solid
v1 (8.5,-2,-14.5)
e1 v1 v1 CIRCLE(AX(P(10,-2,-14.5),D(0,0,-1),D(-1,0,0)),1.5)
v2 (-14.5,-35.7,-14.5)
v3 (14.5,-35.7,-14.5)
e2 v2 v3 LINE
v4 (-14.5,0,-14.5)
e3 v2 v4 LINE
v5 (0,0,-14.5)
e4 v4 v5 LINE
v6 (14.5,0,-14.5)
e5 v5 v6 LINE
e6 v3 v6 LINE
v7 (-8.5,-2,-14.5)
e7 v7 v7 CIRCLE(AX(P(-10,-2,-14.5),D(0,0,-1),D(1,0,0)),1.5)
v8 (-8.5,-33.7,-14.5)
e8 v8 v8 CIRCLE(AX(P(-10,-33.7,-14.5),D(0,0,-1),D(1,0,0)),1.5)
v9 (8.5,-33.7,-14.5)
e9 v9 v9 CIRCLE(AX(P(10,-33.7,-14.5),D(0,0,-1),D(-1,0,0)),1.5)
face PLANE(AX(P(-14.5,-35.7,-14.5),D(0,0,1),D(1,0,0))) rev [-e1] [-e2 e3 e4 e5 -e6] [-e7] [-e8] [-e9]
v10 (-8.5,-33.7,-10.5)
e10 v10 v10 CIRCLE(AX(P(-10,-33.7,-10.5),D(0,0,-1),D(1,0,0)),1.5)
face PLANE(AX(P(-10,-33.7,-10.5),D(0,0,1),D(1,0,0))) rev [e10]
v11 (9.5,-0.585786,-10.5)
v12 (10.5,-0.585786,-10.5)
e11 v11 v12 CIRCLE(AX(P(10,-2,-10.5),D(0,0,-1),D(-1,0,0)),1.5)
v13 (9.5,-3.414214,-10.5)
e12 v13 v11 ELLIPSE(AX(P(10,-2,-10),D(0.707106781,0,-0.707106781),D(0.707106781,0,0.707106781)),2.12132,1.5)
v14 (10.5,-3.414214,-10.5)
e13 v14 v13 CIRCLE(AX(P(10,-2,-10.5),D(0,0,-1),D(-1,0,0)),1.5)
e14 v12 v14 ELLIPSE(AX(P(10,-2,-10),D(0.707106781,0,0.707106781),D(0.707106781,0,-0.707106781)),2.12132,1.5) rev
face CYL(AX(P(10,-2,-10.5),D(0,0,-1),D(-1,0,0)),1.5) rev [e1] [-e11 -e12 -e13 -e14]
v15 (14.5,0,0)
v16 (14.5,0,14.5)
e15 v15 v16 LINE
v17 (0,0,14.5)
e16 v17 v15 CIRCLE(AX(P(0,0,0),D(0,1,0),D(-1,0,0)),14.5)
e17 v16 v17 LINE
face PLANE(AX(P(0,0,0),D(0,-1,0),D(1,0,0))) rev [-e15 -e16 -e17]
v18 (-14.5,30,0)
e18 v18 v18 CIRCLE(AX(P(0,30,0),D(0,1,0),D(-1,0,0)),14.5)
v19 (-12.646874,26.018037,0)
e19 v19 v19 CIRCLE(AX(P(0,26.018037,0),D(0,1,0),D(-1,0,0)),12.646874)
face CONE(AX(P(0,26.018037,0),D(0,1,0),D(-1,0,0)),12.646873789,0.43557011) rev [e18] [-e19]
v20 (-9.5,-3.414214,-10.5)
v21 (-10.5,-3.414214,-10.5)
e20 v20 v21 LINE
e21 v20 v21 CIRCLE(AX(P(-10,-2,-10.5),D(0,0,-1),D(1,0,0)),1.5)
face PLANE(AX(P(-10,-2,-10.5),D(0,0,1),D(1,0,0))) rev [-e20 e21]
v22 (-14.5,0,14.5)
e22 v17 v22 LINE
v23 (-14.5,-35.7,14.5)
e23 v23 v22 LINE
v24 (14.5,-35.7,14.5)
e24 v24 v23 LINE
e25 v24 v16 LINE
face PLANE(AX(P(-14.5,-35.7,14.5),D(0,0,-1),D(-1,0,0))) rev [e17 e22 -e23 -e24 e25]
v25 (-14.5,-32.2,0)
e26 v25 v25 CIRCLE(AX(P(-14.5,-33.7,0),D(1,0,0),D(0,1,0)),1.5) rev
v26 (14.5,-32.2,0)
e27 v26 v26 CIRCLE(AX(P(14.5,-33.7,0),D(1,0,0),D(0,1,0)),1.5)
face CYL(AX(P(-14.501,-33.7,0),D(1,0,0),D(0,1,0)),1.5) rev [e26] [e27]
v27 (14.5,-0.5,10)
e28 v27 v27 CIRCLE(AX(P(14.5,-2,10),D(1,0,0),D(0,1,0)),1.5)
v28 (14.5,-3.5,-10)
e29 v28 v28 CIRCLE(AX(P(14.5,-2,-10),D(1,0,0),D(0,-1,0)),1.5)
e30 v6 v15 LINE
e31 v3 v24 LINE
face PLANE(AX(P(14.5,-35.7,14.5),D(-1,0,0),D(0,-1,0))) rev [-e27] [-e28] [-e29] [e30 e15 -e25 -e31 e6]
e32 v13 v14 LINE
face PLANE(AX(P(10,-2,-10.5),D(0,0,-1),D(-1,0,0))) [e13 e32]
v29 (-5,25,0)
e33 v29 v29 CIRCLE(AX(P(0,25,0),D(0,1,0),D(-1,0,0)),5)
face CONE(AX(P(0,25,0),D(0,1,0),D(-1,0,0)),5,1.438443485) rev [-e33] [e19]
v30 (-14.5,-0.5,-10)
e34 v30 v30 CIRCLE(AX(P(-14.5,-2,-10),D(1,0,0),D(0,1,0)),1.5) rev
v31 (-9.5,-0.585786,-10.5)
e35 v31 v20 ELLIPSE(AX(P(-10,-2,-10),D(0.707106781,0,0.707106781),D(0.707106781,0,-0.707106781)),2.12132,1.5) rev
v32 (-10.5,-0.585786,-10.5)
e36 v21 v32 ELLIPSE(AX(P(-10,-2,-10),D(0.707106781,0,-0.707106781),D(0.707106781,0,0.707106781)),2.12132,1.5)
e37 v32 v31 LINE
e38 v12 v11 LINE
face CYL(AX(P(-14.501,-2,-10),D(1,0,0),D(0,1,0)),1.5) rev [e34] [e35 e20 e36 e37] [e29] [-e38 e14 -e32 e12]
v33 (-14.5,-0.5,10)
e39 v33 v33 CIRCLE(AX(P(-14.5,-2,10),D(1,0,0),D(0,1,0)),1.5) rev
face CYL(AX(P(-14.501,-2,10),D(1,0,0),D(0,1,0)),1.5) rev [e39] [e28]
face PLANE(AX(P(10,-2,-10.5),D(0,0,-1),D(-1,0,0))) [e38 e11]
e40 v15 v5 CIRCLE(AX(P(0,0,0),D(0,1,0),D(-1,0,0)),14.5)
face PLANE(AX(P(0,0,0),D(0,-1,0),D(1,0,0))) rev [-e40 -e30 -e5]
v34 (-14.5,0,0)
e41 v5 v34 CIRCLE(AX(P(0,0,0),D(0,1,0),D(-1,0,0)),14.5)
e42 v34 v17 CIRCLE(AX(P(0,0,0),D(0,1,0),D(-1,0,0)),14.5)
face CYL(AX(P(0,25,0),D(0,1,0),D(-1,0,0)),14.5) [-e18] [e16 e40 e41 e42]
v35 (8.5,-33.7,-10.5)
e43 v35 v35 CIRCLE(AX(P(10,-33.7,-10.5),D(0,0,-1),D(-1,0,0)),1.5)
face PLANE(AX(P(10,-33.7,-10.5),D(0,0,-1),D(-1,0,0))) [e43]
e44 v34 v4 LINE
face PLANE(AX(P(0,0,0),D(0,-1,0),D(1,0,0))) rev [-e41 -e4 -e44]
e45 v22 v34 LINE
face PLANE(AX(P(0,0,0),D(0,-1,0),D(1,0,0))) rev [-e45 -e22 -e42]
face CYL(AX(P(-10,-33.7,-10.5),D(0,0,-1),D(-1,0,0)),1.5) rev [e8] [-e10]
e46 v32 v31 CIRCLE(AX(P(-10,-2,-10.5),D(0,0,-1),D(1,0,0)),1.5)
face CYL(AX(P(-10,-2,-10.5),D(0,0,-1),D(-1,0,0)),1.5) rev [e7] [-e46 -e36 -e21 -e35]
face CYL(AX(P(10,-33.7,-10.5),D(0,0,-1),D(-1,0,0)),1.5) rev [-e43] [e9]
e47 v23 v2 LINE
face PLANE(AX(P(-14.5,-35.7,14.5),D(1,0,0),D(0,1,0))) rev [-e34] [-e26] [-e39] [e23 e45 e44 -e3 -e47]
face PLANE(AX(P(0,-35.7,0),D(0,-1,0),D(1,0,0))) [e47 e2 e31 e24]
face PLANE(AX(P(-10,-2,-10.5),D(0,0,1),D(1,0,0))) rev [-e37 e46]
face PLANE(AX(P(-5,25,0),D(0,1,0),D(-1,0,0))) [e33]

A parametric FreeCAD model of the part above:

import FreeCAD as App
import Part
import Sketcher


def add_polygon(sketch, points):
    """Adds a closed chain of lines whose ends are joined by coincident constraints."""
    first, n = sketch.GeometryCount, len(points)
    for a, b in zip(points, points[1:] + points[:1]):
        sketch.addGeometry(Part.LineSegment(App.Vector(*a, 0), App.Vector(*b, 0)), False)
    for i in range(n):
        sketch.addConstraint(Sketcher.Constraint("Coincident", first + i, 2, first + (i + 1) % n, 1))

doc = App.newDocument("Part")
params = doc.addObject("Spreadsheet::Sheet", "Params")
for row, (alias, value) in enumerate([
    ("sketch1_width", "5 mm"),
    ("sketch1_height", "25 mm"),
    ("sketch1_height2", "30 mm"),
    ("sketch1_width2", "14.5 mm"),
    ("revolution_angle", "360 deg"),
    ("sketch2_width", "29 mm"),
    ("pad1_length", "35.7 mm"),
    ("sketch3_diameter", "3 mm"),
    ("pocket1_length", "4 mm"),
    ("sketch4_diameter", "3 mm"),
    ("sketch5_diameter", "3 mm"),
    ("sketch6_diameter", "3 mm"),
], start=1):
    params.set(f"A{row}", alias)
    params.set(f"B{row}", "=" + value)
    params.setAlias(f"B{row}", alias)

body = doc.addObject("PartDesign::Body", "Body")

sketch1 = doc.addObject("Sketcher::SketchObject", "Sketch")
body.addObject(sketch1)
sketch1.AttachmentSupport = (doc.XY_Plane, [""])
sketch1.MapMode = "FlatFace"
add_polygon(sketch1, [(-14.5, 0), (0, 0), (0, 25), (-5, 25), (-12.646874, 26.018037), (-14.5, 30)])
sketch1.addConstraint([
    Sketcher.Constraint("Horizontal", 0),
    Sketcher.Constraint("Vertical", 1),
    Sketcher.Constraint("Horizontal", 2),
    Sketcher.Constraint("Vertical", 5),
    Sketcher.Constraint("Coincident", 0, 2, -1, 1),
    Sketcher.Constraint("DistanceX", 2, 2, 2, 1, 5.0),
    Sketcher.Constraint("DistanceY", 1, 1, 1, 2, 25.0),
    Sketcher.Constraint("DistanceY", 5, 2, 5, 1, 30.0),
    Sketcher.Constraint("DistanceX", 0, 1, 0, 2, 14.5),
    Sketcher.Constraint("Distance", 4, 4.39205),
    Sketcher.Constraint("Distance", 3, 7.714342),
])
sketch1.setExpression("Constraints[11]", "Params.sketch1_width")
sketch1.setExpression("Constraints[12]", "Params.sketch1_height")
sketch1.setExpression("Constraints[13]", "Params.sketch1_height2")
sketch1.setExpression("Constraints[14]", "Params.sketch1_width2")
revolution = doc.addObject("PartDesign::Revolution", "Revolution")
body.addObject(revolution)
revolution.Profile = sketch1
revolution.ReferenceAxis = (sketch1, ["V_Axis"])
revolution.setExpression("Angle", "Params.revolution_angle")

sketch2 = doc.addObject("Sketcher::SketchObject", "Sketch001")
body.addObject(sketch2)
sketch2.AttachmentSupport = (doc.XZ_Plane, [""])
sketch2.MapMode = "FlatFace"
add_polygon(sketch2, [(-14.5, 14.5), (-14.5, -14.5), (14.5, -14.5), (14.5, 14.5)])
sketch2.addConstraint([
    Sketcher.Constraint("Vertical", 0),
    Sketcher.Constraint("Horizontal", 1),
    Sketcher.Constraint("Vertical", 2),
    Sketcher.Constraint("Horizontal", 3),
    Sketcher.Constraint("Symmetric", 0, 2, 2, 2, -1, 1),
    Sketcher.Constraint("Equal", 3, 0),
    Sketcher.Constraint("DistanceX", 1, 1, 1, 2, 29.0),
])
sketch2.setExpression("Constraints[10]", "Params.sketch2_width")
pad1 = doc.addObject("PartDesign::Pad", "Pad")
body.addObject(pad1)
pad1.Profile = sketch2
pad1.setExpression("Length", "Params.pad1_length")

sketch3 = doc.addObject("Sketcher::SketchObject", "Sketch002")
body.addObject(sketch3)
sketch3.AttachmentSupport = (doc.XY_Plane, [""])
sketch3.MapMode = "FlatFace"
sketch3.AttachmentOffset = App.Placement(App.Vector(0, 0, -14.5), App.Rotation())
sketch3.addGeometry([
    Part.Circle(App.Vector(10, -2, 0), App.Vector(0, 0, 1), 1.5),
    Part.Circle(App.Vector(10, -33.7, 0), App.Vector(0, 0, 1), 1.5),
    Part.Circle(App.Vector(-10, -33.7, 0), App.Vector(0, 0, 1), 1.5),
    Part.Circle(App.Vector(-10, -2, 0), App.Vector(0, 0, 1), 1.5),
], False)
sketch3.addConstraint([
    Sketcher.Constraint("Equal", 0, 1),
    Sketcher.Constraint("Equal", 1, 2),
    Sketcher.Constraint("Equal", 2, 3),
    Sketcher.Constraint("Symmetric", 1, 3, 2, 3, -2),
    Sketcher.Constraint("Symmetric", 0, 3, 3, 3, -2),
    Sketcher.Constraint("Vertical", 0, 3, 1, 3),
    Sketcher.Constraint("Diameter", 0, 3.0),
    Sketcher.Constraint("DistanceX", -1, 1, 0, 3, 10.0),
    Sketcher.Constraint("DistanceY", 0, 3, -1, 1, 2.0),
    Sketcher.Constraint("DistanceY", 1, 3, -1, 1, 33.7),
])
sketch3.setExpression("Constraints[6]", "Params.sketch3_diameter")
pocket1 = doc.addObject("PartDesign::Pocket", "Pocket")
body.addObject(pocket1)
pocket1.Profile = sketch3
pocket1.setExpression("Length", "Params.pocket1_length")
pocket1.Reversed = True

sketch4 = doc.addObject("Sketcher::SketchObject", "Sketch003")
body.addObject(sketch4)
sketch4.AttachmentSupport = (doc.YZ_Plane, [""])
sketch4.MapMode = "FlatFace"
sketch4.AttachmentOffset = App.Placement(App.Vector(0, 0, 14.5), App.Rotation())
sketch4.addGeometry(Part.Circle(App.Vector(-2, 10, 0), App.Vector(0, 0, 1), 1.5), False)
sketch4.addConstraint([
    Sketcher.Constraint("Diameter", 0, 3.0),
    Sketcher.Constraint("DistanceX", 0, 3, -1, 1, 2.0),
    Sketcher.Constraint("DistanceY", -1, 1, 0, 3, 10.0),
])
sketch4.setExpression("Constraints[0]", "Params.sketch4_diameter")
pocket2 = doc.addObject("PartDesign::Pocket", "Pocket001")
body.addObject(pocket2)
pocket2.Profile = sketch4
pocket2.Type = "UpToFirst"

sketch5 = doc.addObject("Sketcher::SketchObject", "Sketch004")
body.addObject(sketch5)
sketch5.AttachmentSupport = (doc.YZ_Plane, [""])
sketch5.MapMode = "FlatFace"
sketch5.AttachmentOffset = App.Placement(App.Vector(0, 0, 14.5), App.Rotation())
sketch5.addGeometry(Part.Circle(App.Vector(-33.7, 0, 0), App.Vector(0, 0, 1), 1.5), False)
sketch5.addConstraint([
    Sketcher.Constraint("PointOnObject", 0, 3, -1),
    Sketcher.Constraint("Diameter", 0, 3.0),
    Sketcher.Constraint("DistanceX", 0, 3, -1, 1, 33.7),
])
sketch5.setExpression("Constraints[1]", "Params.sketch5_diameter")
pocket3 = doc.addObject("PartDesign::Pocket", "Pocket002")
body.addObject(pocket3)
pocket3.Profile = sketch5
pocket3.Type = "UpToFirst"

sketch6 = doc.addObject("Sketcher::SketchObject", "Sketch005")
body.addObject(sketch6)
sketch6.AttachmentSupport = (doc.YZ_Plane, [""])
sketch6.MapMode = "FlatFace"
sketch6.AttachmentOffset = App.Placement(App.Vector(0, 0, 14.5), App.Rotation())
sketch6.addGeometry(Part.Circle(App.Vector(-2, -10, 0), App.Vector(0, 0, 1), 1.5), False)
sketch6.addConstraint([
    Sketcher.Constraint("Diameter", 0, 3.0),
    Sketcher.Constraint("DistanceX", 0, 3, -1, 1, 2.0),
    Sketcher.Constraint("DistanceY", 0, 3, -1, 1, 10.0),
])
sketch6.setExpression("Constraints[0]", "Params.sketch6_diameter")
pocket4 = doc.addObject("PartDesign::Pocket", "Pocket003")
body.addObject(pocket4)
pocket4.Profile = sketch6
pocket4.Type = "UpToFirst"

doc.recompute()
